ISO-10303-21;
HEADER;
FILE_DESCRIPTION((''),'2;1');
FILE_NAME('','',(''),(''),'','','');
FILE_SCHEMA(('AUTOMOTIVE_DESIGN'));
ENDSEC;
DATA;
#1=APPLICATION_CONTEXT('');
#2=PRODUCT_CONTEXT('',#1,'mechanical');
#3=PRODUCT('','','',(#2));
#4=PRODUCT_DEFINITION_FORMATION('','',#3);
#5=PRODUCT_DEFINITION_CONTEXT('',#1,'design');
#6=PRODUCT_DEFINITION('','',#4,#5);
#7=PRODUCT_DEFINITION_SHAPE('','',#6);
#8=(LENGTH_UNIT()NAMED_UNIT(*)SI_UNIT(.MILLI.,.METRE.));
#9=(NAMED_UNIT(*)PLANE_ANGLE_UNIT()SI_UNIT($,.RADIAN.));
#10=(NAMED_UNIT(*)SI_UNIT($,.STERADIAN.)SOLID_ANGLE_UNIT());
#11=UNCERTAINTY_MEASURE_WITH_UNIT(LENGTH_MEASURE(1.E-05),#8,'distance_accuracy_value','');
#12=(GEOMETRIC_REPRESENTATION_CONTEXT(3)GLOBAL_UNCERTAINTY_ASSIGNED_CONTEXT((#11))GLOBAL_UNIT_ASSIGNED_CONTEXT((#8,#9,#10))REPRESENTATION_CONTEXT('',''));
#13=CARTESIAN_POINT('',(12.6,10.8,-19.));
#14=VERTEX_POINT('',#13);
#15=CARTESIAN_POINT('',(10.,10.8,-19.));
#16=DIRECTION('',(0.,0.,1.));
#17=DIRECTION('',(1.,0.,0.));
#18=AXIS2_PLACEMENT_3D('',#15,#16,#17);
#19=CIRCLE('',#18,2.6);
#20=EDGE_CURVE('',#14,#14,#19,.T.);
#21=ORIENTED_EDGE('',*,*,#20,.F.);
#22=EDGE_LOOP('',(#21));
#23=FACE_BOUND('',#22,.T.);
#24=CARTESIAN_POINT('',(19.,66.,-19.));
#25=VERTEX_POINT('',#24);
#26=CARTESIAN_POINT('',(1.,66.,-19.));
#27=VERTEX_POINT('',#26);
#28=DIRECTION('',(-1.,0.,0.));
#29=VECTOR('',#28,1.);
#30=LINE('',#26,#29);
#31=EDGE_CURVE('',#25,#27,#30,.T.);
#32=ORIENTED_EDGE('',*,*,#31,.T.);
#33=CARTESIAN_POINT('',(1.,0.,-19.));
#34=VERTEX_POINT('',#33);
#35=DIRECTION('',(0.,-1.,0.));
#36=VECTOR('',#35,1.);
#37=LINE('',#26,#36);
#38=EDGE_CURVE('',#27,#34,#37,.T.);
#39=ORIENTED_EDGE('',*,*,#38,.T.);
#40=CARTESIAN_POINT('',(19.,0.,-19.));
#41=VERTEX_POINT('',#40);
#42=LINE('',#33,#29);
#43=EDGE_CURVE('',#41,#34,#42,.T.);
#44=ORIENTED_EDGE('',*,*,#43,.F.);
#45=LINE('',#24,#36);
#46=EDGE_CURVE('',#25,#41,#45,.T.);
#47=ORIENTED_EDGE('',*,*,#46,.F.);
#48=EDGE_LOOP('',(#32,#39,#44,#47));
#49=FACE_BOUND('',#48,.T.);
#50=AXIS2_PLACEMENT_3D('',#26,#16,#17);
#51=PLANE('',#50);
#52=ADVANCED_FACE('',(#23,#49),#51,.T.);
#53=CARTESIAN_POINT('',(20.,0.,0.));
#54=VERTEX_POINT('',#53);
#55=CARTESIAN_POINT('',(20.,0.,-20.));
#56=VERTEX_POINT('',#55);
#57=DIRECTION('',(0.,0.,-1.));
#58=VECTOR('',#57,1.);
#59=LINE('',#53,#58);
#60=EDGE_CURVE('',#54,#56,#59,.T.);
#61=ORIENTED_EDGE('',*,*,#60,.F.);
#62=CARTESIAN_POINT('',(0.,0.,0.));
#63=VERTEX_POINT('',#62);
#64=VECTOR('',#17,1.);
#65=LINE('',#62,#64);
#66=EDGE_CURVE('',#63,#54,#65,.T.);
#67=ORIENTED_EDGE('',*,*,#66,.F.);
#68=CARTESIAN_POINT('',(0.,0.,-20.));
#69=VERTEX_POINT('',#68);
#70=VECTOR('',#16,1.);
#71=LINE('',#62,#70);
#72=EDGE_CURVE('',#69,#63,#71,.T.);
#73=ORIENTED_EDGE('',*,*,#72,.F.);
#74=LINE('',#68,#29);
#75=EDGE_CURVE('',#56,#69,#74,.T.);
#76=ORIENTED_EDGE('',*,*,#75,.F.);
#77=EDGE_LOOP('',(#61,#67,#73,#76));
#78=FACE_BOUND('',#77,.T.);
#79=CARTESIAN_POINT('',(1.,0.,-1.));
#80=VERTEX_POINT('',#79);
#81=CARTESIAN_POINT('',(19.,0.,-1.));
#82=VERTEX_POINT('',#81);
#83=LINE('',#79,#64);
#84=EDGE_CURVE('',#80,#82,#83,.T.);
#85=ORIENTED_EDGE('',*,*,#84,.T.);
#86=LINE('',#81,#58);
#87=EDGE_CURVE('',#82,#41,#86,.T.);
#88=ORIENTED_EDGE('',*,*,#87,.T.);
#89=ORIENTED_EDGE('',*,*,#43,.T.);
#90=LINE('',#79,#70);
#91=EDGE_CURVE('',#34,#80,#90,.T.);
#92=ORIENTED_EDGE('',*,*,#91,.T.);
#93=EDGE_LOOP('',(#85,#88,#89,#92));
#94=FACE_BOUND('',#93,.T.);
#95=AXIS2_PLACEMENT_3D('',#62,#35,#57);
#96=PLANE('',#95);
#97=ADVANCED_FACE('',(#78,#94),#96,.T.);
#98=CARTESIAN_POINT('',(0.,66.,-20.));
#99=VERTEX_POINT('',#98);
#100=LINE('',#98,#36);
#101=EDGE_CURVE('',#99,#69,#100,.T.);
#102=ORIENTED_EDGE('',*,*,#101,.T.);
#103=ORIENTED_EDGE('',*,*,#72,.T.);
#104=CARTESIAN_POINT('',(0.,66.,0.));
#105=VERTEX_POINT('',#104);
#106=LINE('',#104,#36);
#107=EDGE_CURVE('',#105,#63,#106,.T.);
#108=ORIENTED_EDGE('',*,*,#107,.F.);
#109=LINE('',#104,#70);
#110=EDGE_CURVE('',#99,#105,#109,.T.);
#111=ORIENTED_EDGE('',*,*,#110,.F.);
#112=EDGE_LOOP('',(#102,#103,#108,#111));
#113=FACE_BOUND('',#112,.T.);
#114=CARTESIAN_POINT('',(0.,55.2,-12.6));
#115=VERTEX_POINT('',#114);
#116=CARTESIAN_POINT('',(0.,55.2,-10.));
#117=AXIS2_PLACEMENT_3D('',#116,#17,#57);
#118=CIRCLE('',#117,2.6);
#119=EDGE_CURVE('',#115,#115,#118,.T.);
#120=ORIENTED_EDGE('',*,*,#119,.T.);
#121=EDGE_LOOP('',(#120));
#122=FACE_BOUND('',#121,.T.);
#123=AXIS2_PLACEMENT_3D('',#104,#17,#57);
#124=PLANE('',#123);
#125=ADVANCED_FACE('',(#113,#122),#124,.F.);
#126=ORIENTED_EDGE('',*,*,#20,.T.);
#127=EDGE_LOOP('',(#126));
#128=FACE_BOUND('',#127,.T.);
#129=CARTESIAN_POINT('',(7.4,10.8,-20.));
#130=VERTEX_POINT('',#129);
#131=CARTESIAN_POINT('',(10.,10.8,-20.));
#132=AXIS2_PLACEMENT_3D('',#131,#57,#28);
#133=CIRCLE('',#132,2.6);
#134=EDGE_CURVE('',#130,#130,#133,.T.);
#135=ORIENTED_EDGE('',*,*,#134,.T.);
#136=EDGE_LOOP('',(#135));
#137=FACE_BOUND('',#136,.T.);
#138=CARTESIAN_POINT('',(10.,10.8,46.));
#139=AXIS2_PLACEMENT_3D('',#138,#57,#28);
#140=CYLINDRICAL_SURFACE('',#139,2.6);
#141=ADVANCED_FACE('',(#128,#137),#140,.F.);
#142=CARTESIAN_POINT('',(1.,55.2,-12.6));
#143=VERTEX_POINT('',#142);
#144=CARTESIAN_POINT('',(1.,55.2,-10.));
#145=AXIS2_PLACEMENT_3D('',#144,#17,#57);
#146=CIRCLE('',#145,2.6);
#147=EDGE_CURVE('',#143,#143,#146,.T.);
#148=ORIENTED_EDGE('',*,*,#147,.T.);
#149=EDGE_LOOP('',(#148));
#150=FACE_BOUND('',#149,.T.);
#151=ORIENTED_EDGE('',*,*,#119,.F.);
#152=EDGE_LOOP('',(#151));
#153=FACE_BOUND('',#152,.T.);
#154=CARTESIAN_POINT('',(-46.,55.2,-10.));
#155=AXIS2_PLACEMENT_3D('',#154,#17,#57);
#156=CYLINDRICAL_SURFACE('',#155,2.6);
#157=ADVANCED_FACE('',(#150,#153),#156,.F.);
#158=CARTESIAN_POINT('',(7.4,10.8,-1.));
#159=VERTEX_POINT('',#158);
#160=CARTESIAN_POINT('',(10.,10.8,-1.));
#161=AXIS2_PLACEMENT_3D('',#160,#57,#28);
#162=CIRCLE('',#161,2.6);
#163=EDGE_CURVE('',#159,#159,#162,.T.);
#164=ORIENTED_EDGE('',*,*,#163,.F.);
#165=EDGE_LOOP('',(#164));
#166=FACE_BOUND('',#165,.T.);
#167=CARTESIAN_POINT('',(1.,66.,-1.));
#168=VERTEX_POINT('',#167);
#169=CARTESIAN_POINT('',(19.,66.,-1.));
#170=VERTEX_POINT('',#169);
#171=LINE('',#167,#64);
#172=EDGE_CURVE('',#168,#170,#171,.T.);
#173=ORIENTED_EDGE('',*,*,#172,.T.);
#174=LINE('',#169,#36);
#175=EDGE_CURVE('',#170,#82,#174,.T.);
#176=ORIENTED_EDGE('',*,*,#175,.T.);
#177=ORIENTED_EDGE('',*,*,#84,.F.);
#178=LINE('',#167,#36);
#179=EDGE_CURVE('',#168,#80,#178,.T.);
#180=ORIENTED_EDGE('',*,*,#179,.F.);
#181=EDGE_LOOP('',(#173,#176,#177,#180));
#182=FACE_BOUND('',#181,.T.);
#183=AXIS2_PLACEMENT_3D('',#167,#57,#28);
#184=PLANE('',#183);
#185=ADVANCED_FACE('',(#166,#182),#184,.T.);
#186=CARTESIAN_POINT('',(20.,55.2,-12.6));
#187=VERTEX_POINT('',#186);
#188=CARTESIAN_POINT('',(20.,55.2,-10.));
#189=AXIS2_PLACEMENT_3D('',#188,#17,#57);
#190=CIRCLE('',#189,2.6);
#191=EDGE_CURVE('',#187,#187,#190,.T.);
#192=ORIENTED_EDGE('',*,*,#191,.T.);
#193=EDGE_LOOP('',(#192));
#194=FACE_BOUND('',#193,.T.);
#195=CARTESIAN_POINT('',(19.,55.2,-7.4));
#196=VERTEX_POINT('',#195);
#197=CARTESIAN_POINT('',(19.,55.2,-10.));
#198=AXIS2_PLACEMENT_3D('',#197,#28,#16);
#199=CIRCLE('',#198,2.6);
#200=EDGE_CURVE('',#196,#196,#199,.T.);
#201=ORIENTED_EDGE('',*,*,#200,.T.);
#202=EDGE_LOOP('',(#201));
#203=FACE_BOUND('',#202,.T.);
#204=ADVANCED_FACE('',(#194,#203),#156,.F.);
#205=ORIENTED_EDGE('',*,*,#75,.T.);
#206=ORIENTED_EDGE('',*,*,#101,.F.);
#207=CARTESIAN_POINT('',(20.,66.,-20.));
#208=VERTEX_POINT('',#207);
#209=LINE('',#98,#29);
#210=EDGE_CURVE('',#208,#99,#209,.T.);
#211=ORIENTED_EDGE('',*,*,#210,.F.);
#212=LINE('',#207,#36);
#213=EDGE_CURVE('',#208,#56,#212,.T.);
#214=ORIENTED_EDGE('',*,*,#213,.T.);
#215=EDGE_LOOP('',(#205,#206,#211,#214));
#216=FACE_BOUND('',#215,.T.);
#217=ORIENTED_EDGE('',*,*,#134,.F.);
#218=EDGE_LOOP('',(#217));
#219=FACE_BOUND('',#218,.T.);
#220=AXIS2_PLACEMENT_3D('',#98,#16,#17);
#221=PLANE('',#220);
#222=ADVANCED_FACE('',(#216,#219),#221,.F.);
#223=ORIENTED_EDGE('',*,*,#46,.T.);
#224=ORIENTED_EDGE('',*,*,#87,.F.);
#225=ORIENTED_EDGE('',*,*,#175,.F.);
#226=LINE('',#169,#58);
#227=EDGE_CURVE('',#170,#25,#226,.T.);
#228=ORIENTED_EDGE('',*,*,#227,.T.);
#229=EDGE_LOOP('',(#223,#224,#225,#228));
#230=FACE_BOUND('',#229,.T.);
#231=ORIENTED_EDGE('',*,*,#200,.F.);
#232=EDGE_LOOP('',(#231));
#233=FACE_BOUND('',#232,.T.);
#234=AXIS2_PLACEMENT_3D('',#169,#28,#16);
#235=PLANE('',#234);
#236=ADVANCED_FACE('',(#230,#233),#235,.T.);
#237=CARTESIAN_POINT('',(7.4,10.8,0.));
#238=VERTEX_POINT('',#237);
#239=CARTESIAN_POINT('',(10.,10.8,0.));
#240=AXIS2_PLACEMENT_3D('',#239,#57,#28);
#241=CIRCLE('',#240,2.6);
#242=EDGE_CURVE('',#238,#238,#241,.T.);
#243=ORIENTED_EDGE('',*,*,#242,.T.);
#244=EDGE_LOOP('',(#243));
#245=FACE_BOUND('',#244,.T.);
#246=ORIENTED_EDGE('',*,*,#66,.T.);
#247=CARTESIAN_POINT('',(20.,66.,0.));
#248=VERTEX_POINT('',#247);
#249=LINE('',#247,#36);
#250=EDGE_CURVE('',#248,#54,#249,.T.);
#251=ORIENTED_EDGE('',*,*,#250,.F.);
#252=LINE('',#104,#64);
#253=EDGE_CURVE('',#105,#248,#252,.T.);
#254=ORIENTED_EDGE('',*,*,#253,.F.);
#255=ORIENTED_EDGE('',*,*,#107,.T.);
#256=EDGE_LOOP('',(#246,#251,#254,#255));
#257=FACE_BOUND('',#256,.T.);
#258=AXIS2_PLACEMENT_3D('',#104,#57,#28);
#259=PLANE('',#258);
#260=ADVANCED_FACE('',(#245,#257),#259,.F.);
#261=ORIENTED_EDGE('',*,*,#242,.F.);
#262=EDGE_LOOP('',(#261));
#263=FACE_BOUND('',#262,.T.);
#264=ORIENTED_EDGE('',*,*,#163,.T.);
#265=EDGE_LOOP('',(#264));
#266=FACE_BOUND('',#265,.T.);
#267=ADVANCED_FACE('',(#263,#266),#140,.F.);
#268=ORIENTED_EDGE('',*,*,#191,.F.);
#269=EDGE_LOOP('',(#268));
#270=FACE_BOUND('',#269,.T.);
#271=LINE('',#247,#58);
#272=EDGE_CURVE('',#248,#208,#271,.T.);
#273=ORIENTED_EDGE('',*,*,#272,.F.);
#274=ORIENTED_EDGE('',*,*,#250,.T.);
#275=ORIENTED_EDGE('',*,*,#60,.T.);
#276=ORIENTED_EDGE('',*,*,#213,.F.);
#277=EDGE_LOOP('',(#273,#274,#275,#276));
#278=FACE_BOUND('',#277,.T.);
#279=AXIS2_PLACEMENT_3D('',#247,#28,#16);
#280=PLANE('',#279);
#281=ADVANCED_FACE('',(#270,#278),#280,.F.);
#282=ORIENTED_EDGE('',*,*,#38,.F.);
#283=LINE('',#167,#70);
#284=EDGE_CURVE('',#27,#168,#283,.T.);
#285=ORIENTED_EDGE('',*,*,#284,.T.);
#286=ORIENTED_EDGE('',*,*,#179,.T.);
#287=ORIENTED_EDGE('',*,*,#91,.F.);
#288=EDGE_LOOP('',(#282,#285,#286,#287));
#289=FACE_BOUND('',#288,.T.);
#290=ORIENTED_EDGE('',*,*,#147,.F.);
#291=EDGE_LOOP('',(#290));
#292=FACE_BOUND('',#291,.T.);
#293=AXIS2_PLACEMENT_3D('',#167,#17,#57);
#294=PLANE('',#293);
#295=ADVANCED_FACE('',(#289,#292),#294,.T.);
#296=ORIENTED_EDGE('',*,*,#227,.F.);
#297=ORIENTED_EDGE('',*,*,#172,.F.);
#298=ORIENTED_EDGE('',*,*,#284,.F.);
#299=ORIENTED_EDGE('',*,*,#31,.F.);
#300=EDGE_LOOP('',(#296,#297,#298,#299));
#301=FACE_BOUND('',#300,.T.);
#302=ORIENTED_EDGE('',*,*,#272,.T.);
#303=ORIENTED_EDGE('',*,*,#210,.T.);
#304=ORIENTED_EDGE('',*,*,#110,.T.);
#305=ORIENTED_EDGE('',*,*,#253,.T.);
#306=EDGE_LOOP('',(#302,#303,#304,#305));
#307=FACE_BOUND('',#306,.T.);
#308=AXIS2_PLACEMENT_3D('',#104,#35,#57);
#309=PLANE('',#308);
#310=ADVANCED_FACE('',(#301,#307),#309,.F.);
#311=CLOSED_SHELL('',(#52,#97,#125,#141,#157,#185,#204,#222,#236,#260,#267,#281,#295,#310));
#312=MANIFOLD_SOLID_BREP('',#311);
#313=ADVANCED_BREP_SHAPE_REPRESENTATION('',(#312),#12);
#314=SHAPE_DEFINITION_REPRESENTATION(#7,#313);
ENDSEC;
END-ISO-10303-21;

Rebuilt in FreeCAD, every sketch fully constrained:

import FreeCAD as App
import Part
import Sketcher
from FreeCAD import Vector


def add_polygon(sketch, points):
    """Adds a closed chain of lines whose ends are joined by coincident constraints."""
    first, n = sketch.GeometryCount, len(points)
    for a, b in zip(points, points[1:] + points[:1]):
        sketch.addGeometry(Part.LineSegment(App.Vector(*a, 0), App.Vector(*b, 0)), False)
    for i in range(n):
        sketch.addConstraint(Sketcher.Constraint("Coincident", first + i, 2, first + (i + 1) % n, 1))

doc = App.newDocument("Part")
body = doc.addObject("PartDesign::Body", "Body")

sketch1 = doc.addObject("Sketcher::SketchObject", "Sketch")
body.addObject(sketch1)
sketch1.AttachmentSupport = (doc.XZ_Plane, [""])
sketch1.MapMode = "FlatFace"
add_polygon(sketch1, [(0, -20), (0, 0), (20, 0), (20, -20)])
add_polygon(sketch1, [(19, -1), (1, -1), (1, -19), (19, -19)])
sketch1.addConstraint(Sketcher.Constraint("Vertical", 0))
sketch1.addConstraint(Sketcher.Constraint("Horizontal", 1))
sketch1.addConstraint(Sketcher.Constraint("Vertical", 2))
sketch1.addConstraint(Sketcher.Constraint("Horizontal", 3))
sketch1.addConstraint(Sketcher.Constraint("Horizontal", 4))
sketch1.addConstraint(Sketcher.Constraint("Vertical", 5))
sketch1.addConstraint(Sketcher.Constraint("Horizontal", 6))
sketch1.addConstraint(Sketcher.Constraint("Vertical", 7))
sketch1.addConstraint(Sketcher.Constraint("Coincident", 0, 2, -1, 1))
sketch1.addConstraint(Sketcher.Constraint("Equal", 3, 0))
sketch1.addConstraint(Sketcher.Constraint("Equal", 6, 5))
sketch1.addConstraint(Sketcher.Constraint("DistanceX", 1, 1, 1, 2, 20.0))
sketch1.addConstraint(Sketcher.Constraint("DistanceX", 4, 2, 4, 1, 18.0))
sketch1.addConstraint(Sketcher.Constraint("DistanceX", -1, 1, 4, 2, 1.0))
sketch1.addConstraint(Sketcher.Constraint("DistanceY", 4, 2, -1, 1, 1.0))
pad1 = doc.addObject("PartDesign::Pad", "Pad")
body.addObject(pad1)
pad1.Profile = sketch1
pad1.Length = 66
pad1.Reversed = True

sketch2 = doc.addObject("Sketcher::SketchObject", "Sketch001")
body.addObject(sketch2)
sketch2.AttachmentSupport = (doc.YZ_Plane, [""])
sketch2.MapMode = "FlatFace"
sketch2.AttachmentOffset = App.Placement(Vector(0, 0, 20), App.Rotation())
sketch2.addGeometry(Part.Circle(Vector(55.2, -10, 0), Vector(0, 0, 1), 2.6), False)
sketch2.addConstraint(Sketcher.Constraint("Diameter", 0, 5.2))
sketch2.addConstraint(Sketcher.Constraint("DistanceY", 0, 3, -1, 1, 10.0))
sketch2.addConstraint(Sketcher.Constraint("DistanceX", -1, 1, 0, 3, 55.2))
pocket1 = doc.addObject("PartDesign::Pocket", "Pocket")
body.addObject(pocket1)
pocket1.Profile = sketch2
pocket1.Length = 66

sketch3 = doc.addObject("Sketcher::SketchObject", "Sketch002")
body.addObject(sketch3)
sketch3.AttachmentSupport = (doc.XY_Plane, [""])
sketch3.MapMode = "FlatFace"
sketch3.AttachmentOffset = App.Placement(Vector(0, 0, -20), App.Rotation())
sketch3.addGeometry(Part.Circle(Vector(10, 10.8, 0), Vector(0, 0, 1), 2.6), False)
sketch3.addConstraint(Sketcher.Constraint("Diameter", 0, 5.2))
sketch3.addConstraint(Sketcher.Constraint("DistanceX", -1, 1, 0, 3, 10.0))
sketch3.addConstraint(Sketcher.Constraint("DistanceY", -1, 1, 0, 3, 10.8))
pocket2 = doc.addObject("PartDesign::Pocket", "Pocket001")
body.addObject(pocket2)
pocket2.Profile = sketch3
pocket2.Length = 66
pocket2.Reversed = True

doc.recompute()
